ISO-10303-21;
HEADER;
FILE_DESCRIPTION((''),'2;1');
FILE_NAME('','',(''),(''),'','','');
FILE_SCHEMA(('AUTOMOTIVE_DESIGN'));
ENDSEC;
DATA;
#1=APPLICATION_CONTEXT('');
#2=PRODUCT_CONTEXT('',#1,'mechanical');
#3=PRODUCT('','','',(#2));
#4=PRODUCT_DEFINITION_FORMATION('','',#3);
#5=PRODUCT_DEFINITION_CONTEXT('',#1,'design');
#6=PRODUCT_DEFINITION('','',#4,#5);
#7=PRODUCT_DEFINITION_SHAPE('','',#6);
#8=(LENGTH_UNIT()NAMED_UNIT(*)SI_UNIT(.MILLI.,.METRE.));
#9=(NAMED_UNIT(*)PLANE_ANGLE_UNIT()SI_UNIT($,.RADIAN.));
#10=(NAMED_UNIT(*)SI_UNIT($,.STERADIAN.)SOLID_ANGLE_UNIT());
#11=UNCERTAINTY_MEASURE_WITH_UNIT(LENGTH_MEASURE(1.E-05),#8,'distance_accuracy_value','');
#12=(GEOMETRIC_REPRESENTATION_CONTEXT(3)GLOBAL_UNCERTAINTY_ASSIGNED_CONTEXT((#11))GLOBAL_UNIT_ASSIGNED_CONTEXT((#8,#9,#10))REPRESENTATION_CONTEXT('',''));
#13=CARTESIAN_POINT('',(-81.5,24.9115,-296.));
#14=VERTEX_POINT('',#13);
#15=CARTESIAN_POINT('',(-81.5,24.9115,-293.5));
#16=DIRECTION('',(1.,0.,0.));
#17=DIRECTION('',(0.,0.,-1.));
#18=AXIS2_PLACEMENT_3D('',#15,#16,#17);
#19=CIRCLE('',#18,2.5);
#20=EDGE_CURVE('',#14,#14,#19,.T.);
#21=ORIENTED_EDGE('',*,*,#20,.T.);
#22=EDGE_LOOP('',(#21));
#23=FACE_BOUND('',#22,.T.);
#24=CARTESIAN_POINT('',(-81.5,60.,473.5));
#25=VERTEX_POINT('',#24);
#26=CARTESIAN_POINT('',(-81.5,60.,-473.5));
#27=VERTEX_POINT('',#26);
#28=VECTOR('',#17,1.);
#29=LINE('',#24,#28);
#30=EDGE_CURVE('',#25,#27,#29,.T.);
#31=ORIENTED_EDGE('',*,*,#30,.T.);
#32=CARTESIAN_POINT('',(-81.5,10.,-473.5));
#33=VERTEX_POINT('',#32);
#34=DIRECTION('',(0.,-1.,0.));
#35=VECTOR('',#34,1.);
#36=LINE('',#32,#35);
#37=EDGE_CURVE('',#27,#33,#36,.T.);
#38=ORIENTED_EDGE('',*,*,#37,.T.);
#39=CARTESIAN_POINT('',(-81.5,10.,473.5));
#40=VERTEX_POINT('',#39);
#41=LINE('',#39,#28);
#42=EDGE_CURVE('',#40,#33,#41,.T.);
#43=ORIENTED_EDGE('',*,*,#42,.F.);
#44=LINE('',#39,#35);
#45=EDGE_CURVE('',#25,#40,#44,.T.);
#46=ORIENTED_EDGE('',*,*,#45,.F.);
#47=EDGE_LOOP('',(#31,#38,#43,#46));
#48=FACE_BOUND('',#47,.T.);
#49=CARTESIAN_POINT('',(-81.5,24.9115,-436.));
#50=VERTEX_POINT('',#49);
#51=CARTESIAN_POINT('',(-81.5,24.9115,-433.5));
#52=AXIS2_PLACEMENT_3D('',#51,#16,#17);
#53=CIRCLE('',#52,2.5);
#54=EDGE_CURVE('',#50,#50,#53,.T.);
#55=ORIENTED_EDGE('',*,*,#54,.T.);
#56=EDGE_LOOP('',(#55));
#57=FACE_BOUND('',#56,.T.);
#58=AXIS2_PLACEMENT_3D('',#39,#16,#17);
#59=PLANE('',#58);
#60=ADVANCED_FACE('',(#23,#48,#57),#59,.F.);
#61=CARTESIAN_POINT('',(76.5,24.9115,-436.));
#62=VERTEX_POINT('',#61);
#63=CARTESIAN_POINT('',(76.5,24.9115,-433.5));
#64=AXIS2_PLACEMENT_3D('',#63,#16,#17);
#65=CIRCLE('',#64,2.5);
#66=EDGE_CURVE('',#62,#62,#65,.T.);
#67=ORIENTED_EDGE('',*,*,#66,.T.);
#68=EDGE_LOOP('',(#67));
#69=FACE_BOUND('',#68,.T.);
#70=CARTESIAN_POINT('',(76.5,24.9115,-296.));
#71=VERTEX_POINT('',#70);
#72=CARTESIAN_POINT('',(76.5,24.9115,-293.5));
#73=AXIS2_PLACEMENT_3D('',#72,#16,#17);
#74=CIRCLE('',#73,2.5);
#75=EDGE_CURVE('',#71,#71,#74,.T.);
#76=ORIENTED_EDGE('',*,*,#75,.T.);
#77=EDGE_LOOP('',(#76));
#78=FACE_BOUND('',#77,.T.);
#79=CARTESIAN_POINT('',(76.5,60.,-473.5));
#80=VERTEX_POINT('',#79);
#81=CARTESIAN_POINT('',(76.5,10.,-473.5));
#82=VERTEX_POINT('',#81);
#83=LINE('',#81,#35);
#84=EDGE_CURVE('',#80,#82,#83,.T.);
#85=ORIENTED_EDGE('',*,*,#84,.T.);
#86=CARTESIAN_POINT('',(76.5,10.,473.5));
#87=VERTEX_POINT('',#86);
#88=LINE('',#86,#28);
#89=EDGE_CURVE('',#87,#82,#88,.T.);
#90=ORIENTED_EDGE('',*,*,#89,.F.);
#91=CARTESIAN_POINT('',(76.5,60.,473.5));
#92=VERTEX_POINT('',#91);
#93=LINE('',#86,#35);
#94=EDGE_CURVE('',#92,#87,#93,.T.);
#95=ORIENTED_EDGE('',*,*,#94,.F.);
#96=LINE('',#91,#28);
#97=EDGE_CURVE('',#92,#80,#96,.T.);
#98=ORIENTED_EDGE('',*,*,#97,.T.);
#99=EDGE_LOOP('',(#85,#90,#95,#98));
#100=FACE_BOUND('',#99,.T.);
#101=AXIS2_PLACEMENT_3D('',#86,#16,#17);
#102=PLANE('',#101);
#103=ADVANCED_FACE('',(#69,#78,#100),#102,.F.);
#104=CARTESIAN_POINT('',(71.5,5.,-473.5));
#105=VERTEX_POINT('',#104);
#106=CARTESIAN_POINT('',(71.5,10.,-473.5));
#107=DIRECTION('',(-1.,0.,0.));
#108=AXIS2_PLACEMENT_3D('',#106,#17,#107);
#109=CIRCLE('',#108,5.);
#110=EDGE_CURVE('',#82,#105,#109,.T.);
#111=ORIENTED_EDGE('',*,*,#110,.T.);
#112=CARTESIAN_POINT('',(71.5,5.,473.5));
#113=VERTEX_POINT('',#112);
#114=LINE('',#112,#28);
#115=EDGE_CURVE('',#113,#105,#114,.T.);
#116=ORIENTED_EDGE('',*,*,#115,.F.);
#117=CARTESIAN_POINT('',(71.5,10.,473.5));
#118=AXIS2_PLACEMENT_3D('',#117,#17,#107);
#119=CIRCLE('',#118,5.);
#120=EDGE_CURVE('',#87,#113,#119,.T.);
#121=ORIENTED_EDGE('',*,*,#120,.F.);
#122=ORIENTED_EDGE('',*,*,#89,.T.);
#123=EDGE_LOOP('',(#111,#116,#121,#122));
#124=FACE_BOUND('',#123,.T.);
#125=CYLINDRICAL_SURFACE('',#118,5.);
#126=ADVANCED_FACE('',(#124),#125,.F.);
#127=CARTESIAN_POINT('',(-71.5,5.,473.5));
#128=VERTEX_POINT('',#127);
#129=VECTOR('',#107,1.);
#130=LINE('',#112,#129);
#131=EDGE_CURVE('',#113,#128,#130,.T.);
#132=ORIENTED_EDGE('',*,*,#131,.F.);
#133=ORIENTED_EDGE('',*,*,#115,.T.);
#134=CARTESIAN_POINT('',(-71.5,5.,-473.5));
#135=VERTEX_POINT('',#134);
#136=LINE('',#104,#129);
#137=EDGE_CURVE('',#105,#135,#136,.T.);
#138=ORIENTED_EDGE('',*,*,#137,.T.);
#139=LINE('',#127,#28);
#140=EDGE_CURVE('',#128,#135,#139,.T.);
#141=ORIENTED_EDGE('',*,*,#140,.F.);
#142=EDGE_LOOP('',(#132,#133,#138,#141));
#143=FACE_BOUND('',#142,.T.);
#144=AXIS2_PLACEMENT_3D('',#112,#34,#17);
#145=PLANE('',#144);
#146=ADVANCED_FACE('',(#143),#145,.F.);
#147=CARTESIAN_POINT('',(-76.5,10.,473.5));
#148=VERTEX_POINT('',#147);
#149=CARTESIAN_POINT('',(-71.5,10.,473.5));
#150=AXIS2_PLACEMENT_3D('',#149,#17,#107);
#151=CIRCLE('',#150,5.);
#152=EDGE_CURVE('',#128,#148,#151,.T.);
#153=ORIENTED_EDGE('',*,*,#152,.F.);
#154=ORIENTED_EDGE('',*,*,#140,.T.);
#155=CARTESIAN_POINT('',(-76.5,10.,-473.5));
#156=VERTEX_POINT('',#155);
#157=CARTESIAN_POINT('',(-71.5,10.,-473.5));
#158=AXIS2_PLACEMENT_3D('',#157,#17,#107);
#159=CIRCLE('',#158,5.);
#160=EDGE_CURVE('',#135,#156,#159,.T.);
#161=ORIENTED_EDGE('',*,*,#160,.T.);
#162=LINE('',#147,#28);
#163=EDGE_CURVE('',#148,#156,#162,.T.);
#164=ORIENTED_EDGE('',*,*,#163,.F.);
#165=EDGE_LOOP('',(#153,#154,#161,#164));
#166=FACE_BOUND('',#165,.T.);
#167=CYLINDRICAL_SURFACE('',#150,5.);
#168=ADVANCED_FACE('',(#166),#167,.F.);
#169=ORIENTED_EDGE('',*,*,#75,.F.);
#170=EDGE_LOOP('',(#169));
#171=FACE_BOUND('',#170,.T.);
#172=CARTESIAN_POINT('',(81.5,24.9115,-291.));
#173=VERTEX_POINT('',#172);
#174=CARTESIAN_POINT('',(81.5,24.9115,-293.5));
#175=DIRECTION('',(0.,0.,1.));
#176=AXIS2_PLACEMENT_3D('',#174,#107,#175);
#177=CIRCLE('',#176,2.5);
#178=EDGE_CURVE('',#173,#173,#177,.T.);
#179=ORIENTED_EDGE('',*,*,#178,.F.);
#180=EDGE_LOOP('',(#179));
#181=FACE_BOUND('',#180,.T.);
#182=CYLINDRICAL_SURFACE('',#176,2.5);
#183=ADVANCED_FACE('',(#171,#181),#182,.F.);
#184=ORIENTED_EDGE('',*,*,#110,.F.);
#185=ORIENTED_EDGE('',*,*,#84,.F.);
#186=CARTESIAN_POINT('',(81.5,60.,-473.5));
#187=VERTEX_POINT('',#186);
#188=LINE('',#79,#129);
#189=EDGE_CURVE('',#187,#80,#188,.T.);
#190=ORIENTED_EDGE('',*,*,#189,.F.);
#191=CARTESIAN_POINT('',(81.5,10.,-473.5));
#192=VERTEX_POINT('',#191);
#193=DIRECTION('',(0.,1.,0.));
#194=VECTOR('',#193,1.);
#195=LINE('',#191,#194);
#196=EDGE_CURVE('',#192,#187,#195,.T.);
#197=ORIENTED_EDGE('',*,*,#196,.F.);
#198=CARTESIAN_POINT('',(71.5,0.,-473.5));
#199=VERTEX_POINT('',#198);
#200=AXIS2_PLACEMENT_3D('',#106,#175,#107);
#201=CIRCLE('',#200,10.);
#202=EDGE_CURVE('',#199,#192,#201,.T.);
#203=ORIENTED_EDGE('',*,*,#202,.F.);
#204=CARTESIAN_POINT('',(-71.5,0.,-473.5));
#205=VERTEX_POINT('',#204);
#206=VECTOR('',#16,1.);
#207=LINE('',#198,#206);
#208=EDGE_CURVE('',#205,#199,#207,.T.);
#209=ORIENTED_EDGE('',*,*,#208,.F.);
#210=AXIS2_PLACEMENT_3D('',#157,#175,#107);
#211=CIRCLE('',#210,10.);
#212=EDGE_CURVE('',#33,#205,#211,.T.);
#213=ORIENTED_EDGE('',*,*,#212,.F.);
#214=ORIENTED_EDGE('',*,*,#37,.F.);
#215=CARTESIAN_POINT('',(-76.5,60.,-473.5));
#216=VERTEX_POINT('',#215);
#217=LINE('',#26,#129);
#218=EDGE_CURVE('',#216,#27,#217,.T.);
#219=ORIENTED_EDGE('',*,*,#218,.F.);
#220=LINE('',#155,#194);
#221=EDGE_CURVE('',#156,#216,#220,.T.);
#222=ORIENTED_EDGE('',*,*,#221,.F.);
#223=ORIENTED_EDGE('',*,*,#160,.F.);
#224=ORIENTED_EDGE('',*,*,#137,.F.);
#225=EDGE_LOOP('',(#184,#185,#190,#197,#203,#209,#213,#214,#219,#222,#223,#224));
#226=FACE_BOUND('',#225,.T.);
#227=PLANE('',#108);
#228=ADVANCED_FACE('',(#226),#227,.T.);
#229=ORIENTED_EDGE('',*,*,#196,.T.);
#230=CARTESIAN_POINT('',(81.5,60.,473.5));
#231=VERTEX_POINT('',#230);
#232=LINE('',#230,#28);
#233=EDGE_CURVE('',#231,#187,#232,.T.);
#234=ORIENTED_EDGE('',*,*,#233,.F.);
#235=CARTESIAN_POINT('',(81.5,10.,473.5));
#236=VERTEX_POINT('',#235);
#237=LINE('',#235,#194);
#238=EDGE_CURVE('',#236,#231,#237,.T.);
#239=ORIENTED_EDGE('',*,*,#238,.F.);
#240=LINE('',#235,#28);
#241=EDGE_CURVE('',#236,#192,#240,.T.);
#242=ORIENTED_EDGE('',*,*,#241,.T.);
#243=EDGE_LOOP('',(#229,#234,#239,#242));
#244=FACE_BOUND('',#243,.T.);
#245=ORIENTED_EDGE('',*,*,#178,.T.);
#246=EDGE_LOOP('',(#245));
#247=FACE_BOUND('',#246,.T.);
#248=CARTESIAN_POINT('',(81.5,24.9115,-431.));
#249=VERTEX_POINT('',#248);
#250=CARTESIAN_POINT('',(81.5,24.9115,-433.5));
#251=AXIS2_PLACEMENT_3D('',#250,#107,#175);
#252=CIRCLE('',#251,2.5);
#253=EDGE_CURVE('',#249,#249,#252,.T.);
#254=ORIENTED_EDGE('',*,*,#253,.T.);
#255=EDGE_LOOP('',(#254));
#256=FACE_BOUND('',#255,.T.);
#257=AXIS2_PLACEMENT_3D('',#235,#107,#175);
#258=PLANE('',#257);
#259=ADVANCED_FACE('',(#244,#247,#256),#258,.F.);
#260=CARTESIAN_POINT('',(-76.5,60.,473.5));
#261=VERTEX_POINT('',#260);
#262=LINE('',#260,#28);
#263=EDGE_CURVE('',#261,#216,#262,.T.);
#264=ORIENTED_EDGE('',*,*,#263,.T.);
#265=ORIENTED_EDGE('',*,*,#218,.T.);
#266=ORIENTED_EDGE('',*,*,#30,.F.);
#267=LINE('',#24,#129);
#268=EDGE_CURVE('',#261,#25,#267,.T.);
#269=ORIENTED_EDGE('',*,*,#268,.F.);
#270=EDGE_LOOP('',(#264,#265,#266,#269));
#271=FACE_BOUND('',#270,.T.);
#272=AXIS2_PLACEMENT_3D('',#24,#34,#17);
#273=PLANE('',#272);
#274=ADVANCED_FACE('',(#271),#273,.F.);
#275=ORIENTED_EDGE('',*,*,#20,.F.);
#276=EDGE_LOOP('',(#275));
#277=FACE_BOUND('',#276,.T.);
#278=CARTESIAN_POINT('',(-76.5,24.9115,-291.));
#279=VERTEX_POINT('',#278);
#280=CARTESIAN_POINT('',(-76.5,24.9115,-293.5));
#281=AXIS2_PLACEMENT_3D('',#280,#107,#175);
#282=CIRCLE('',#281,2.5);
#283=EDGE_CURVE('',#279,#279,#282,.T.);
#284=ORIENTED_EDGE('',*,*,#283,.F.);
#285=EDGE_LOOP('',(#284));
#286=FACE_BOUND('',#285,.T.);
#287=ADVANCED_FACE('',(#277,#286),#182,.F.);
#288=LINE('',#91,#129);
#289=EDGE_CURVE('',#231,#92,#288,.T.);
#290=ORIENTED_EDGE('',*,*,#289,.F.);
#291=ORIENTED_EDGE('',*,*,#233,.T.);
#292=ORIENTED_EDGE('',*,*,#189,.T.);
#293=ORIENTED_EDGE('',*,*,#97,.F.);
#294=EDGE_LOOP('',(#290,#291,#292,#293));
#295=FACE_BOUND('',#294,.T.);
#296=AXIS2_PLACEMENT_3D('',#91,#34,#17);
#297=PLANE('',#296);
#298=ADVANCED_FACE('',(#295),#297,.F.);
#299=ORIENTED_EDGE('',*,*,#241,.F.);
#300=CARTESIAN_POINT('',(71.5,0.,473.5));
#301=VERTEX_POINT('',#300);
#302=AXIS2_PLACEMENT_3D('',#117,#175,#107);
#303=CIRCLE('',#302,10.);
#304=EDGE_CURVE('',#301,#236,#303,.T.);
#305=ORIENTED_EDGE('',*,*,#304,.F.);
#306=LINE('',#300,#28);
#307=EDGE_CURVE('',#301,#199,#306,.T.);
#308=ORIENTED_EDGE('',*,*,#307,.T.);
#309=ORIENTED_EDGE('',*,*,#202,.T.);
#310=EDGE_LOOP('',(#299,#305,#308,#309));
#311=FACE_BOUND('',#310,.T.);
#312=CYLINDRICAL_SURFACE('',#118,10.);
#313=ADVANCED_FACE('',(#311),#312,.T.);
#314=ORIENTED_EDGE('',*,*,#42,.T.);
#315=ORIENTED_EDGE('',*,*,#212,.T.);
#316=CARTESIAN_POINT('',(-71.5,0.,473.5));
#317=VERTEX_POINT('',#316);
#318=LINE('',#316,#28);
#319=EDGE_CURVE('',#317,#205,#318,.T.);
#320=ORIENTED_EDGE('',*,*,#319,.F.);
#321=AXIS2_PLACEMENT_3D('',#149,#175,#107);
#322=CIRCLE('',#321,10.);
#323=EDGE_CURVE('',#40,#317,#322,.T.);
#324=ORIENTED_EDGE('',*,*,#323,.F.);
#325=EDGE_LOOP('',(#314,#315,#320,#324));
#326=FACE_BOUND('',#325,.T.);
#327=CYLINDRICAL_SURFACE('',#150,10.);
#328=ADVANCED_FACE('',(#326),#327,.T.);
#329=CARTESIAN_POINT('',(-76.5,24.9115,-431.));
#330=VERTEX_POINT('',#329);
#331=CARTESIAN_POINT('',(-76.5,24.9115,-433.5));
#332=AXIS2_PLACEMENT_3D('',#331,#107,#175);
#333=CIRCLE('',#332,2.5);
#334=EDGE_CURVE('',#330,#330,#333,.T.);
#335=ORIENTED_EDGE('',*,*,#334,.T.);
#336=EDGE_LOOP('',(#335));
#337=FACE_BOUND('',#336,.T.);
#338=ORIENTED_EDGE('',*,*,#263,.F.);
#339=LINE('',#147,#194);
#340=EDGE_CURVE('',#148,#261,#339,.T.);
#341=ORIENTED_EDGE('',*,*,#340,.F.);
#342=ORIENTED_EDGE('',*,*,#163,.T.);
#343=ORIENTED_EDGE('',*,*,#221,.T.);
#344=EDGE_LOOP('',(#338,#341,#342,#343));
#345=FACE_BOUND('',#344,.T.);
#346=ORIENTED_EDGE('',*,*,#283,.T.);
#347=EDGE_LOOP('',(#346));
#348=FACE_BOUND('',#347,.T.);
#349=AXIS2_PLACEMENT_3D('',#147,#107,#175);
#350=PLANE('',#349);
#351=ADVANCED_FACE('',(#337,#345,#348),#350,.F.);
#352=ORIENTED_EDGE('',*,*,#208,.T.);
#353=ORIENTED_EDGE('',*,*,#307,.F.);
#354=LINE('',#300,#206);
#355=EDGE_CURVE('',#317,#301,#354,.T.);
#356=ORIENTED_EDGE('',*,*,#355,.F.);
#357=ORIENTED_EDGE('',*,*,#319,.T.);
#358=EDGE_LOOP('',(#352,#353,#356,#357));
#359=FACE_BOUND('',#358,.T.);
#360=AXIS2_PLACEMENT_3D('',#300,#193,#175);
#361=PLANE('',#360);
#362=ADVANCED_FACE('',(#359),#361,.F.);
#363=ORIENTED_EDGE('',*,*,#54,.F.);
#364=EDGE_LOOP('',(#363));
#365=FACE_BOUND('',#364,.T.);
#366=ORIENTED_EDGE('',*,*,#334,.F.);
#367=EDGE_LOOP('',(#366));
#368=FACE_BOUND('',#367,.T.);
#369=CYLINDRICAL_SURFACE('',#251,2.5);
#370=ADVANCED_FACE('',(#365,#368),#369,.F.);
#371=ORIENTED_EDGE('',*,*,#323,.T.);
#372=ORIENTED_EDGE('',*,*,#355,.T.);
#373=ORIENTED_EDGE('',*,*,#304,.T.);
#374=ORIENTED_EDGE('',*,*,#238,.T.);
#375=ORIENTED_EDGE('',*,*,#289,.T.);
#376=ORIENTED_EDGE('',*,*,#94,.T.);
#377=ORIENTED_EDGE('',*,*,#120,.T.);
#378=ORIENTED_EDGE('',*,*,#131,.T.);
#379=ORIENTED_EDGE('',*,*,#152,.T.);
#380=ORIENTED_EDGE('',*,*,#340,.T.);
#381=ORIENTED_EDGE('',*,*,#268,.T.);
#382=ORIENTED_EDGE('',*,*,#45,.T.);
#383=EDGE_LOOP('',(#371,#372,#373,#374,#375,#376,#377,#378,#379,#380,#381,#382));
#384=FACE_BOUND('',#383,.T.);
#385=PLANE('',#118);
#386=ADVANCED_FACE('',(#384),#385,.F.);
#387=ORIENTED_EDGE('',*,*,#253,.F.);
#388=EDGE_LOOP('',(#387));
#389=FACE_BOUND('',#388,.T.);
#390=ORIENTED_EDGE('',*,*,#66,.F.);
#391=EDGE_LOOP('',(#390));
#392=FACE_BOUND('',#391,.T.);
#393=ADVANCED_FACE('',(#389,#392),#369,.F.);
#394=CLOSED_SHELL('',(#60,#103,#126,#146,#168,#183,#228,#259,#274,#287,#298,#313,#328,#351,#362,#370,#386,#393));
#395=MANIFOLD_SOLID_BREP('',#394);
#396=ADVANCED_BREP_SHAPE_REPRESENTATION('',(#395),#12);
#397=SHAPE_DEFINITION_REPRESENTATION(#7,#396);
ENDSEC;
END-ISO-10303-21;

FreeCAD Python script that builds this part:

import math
import FreeCAD as App
import Part
import Sketcher
from FreeCAD import Vector
Q = App.Units.Quantity

doc = App.newDocument("Part")
params = doc.addObject("Spreadsheet::Sheet", "Params")
for row, (alias, value) in enumerate([
    ("sketch1_radius", "10 mm"),
    ("sketch1_radius2", "5 mm"),
    ("sketch1_width", "143 mm"),
    ("sketch1_height", "50 mm"),
    ("pad1_length", "947 mm"),
    ("sketch2_diameter", "5 mm"),
], start=1):
    params.set(f"A{row}", alias)
    params.set(f"B{row}", "=" + value)
    params.setAlias(f"B{row}", alias)

body = doc.addObject("PartDesign::Body", "Body")

sketch1 = body.newObject("Sketcher::SketchObject", "Sketch")
sketch1.AttachmentSupport = (doc.getObject("XY_Plane"), [""])
sketch1.MapMode = "FlatFace"
sketch1.addGeometry([
    Part.LineSegment(Vector(-71.5, 0, 0), Vector(71.5, 0, 0)),
    Part.ArcOfCircle(Part.Circle(Vector(71.5, 10, 0), Vector(0, 0, 1), 10), math.radians(-90), math.radians(0)),
    Part.LineSegment(Vector(81.5, 10, 0), Vector(81.5, 60, 0)),
    Part.LineSegment(Vector(81.5, 60, 0), Vector(76.5, 60, 0)),
    Part.LineSegment(Vector(76.5, 60, 0), Vector(76.5, 10, 0)),
    Part.ArcOfCircle(Part.Circle(Vector(71.5, 10, 0), Vector(0, 0, 1), 5), math.radians(-90), math.radians(0)),
    Part.LineSegment(Vector(71.5, 5, 0), Vector(-71.5, 5, 0)),
    Part.ArcOfCircle(Part.Circle(Vector(-71.5, 10, 0), Vector(0, 0, 1), 5), math.radians(180), math.radians(270)),
    Part.LineSegment(Vector(-76.5, 10, 0), Vector(-76.5, 60, 0)),
    Part.LineSegment(Vector(-76.5, 60, 0), Vector(-81.5, 60, 0)),
    Part.LineSegment(Vector(-81.5, 60, 0), Vector(-81.5, 10, 0)),
    Part.ArcOfCircle(Part.Circle(Vector(-71.5, 10, 0), Vector(0, 0, 1), 10), math.radians(180), math.radians(270)),
], False)
sketch1.addConstraint([
    Sketcher.Constraint("Tangent", 0, 2, 1, 1),
    Sketcher.Constraint("Tangent", 1, 2, 2, 1),
    Sketcher.Constraint("Coincident", 2, 2, 3, 1),
    Sketcher.Constraint("Coincident", 3, 2, 4, 1),
    Sketcher.Constraint("Tangent", 4, 2, 5, 2),
    Sketcher.Constraint("Tangent", 5, 1, 6, 1),
    Sketcher.Constraint("Tangent", 6, 2, 7, 2),
    Sketcher.Constraint("Tangent", 7, 1, 8, 1),
    Sketcher.Constraint("Coincident", 8, 2, 9, 1),
    Sketcher.Constraint("Coincident", 9, 2, 10, 1),
    Sketcher.Constraint("Tangent", 10, 2, 11, 1),
    Sketcher.Constraint("Tangent", 11, 2, 0, 1),
    Sketcher.Constraint("Horizontal", 0),
    Sketcher.Constraint("Vertical", 2),
    Sketcher.Constraint("Horizontal", 3),
    Sketcher.Constraint("Vertical", 4),
    Sketcher.Constraint("Horizontal", 6),
    Sketcher.Constraint("Vertical", 8),
    Sketcher.Constraint("Horizontal", 9),
    Sketcher.Constraint("Vertical", 10),
    Sketcher.Constraint("Coincident", 5, 3, 1, 3),
    Sketcher.Constraint("Coincident", 11, 3, 7, 3),
    Sketcher.Constraint("Equal", 5, 7),
    Sketcher.Constraint("Symmetric", 0, 2, 11, 2, -1, 1),
    Sketcher.Constraint("Horizontal", 3, 2, 8, 2),
    Sketcher.Constraint("Radius", 1, Q("10 mm")),
    Sketcher.Constraint("Radius", 5, Q("5 mm")),
    Sketcher.Constraint("DistanceX", 0, 1, 0, 2, Q("143 mm")),
    Sketcher.Constraint("DistanceY", 2, 1, 2, 2, Q("50 mm")),
])
sketch1.setExpression("Constraints[25]", "Params.sketch1_radius")
sketch1.setExpression("Constraints[26]", "Params.sketch1_radius2")
sketch1.setExpression("Constraints[27]", "Params.sketch1_width")
sketch1.setExpression("Constraints[28]", "Params.sketch1_height")
pad1 = body.newObject("PartDesign::Pad", "Pad")
pad1.Profile = sketch1
pad1.setExpression("Length", "Params.pad1_length")
pad1.Midplane = True

sketch2 = body.newObject("Sketcher::SketchObject", "Sketch001")
sketch2.AttachmentSupport = (doc.getObject("YZ_Plane"), [""])
sketch2.MapMode = "FlatFace"
sketch2.AttachmentOffset = App.Placement(Vector(0, 0, -81.5), App.Rotation())
sketch2.addGeometry([
    Part.Circle(Vector(24.9115, -433.5, 0), Vector(0, 0, 1), 2.5),
    Part.Circle(Vector(24.9115, -293.5, 0), Vector(0, 0, 1), 2.5),
], False)
sketch2.addConstraint([
    Sketcher.Constraint("Equal", 0, 1),
    Sketcher.Constraint("Vertical", 0, 3, 1, 3),
    Sketcher.Constraint("Diameter", 0, Q("5 mm")),
    Sketcher.Constraint("DistanceY", 0, 3, 1, 3, Q("140 mm")),
    Sketcher.Constraint("DistanceY", 0, 3, -1, 1, Q("433.5 mm")),
    Sketcher.Constraint("DistanceX", -1, 1, 0, 3, Q("24.9115 mm")),
])
sketch2.setExpression("Constraints[2]", "Params.sketch2_diameter")
pocket1 = body.newObject("PartDesign::Pocket", "Pocket")
pocket1.Profile = sketch2
pocket1.Type = "ThroughAll"
pocket1.Midplane = True

doc.recompute()
